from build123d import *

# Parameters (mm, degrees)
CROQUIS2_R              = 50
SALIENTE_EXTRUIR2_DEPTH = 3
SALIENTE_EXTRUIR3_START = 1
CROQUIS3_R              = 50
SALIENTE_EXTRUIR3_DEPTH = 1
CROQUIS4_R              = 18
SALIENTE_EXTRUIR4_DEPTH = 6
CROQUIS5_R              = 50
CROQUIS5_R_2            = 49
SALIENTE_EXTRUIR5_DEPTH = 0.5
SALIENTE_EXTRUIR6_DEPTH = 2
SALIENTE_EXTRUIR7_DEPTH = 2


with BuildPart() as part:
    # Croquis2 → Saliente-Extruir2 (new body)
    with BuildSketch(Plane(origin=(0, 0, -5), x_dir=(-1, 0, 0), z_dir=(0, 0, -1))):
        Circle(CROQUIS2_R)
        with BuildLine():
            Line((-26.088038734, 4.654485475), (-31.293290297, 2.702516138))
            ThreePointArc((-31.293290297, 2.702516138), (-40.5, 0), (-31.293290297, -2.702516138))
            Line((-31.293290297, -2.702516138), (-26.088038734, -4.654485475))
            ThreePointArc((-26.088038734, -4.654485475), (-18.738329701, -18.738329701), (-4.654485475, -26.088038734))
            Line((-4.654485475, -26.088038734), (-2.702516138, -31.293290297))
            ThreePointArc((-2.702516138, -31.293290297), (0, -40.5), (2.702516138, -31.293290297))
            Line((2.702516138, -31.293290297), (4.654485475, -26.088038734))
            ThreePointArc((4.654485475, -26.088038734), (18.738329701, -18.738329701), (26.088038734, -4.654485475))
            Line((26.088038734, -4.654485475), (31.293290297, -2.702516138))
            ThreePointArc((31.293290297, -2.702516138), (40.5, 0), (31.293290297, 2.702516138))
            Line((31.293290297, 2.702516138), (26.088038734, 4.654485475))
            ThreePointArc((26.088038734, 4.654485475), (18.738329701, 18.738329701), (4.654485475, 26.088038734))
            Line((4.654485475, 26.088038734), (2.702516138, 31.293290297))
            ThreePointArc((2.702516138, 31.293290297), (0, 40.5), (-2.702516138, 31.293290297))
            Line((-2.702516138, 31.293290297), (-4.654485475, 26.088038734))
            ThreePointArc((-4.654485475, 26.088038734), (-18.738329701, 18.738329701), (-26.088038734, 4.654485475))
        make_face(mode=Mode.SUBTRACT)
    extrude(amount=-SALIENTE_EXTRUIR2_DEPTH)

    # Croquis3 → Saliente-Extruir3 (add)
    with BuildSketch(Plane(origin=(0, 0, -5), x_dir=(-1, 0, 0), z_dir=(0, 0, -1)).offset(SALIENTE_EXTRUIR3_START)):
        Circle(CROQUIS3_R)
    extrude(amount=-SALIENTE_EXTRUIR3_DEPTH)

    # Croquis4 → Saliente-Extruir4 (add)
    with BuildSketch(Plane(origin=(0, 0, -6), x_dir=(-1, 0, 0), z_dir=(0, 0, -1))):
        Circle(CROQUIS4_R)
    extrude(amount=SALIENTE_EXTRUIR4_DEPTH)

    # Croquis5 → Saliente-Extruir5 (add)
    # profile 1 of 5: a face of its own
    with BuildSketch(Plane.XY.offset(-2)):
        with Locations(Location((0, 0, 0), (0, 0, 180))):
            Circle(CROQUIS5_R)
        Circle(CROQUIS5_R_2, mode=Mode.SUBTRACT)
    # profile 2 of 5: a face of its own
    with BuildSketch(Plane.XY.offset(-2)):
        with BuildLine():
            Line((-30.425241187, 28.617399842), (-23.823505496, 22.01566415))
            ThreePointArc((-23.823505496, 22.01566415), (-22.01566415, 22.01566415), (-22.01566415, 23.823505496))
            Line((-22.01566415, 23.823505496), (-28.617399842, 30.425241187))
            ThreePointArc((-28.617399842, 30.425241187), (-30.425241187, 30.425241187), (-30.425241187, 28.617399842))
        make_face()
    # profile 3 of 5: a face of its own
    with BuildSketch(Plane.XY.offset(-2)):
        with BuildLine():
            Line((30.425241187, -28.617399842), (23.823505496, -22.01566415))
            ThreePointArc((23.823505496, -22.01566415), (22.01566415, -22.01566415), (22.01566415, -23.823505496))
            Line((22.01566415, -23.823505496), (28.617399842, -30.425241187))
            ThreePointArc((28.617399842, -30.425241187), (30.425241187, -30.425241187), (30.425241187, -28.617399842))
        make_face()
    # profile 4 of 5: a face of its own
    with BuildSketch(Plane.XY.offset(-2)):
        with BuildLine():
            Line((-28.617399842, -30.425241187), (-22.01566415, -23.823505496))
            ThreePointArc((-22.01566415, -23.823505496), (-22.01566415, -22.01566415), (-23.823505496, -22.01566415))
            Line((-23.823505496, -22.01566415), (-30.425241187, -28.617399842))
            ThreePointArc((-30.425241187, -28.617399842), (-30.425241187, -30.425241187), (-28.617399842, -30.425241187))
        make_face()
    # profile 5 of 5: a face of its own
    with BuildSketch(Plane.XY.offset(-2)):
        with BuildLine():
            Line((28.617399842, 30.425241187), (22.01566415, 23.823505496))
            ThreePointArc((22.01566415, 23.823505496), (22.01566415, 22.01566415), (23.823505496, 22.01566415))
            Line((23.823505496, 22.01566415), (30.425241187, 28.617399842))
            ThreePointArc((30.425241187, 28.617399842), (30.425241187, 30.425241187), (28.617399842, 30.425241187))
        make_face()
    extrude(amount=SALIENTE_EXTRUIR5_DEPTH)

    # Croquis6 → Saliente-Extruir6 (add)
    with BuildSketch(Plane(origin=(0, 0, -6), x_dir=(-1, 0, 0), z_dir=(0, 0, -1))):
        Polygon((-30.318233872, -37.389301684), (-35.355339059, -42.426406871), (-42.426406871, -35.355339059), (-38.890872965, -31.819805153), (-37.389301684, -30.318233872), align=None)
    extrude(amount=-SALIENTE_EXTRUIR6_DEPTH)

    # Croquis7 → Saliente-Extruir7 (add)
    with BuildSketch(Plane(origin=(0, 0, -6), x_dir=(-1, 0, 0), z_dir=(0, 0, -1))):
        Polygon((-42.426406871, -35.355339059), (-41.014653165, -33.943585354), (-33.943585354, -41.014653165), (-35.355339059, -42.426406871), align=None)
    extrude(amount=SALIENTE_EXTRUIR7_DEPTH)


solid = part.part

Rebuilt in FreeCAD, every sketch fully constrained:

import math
import FreeCAD as App
import Part
import Sketcher
Q = App.Units.Quantity


def add_polygon(sketch, points):
    """Adds a closed chain of lines whose ends are joined by coincident constraints."""
    first, n = sketch.GeometryCount, len(points)
    for a, b in zip(points, points[1:] + points[:1]):
        sketch.addGeometry(Part.LineSegment(App.Vector(*a, 0), App.Vector(*b, 0)), False)
    for i in range(n):
        sketch.addConstraint(Sketcher.Constraint("Coincident", first + i, 2, first + (i + 1) % n, 1))

doc = App.newDocument("Part")
body = doc.addObject("PartDesign::Body", "Body")

sketch1 = doc.addObject("Sketcher::SketchObject", "Sketch")
body.addObject(sketch1)
sketch1.AttachmentSupport = (doc.XY_Plane, [""])
sketch1.MapMode = "FlatFace"
sketch1.AttachmentOffset = App.Placement(App.Vector(0, 0, -5), App.Rotation())
sketch1.addGeometry([
    Part.Circle(App.Vector(0, 0, 0), App.Vector(0, 0, 1), 50),
    Part.LineSegment(App.Vector(31, 3, 0), App.Vector(26, 5, 0)),
    Part.ArcOfCircle(Part.Circle(App.Vector(0, 0, 0), App.Vector(0, 0, 1), 27), math.radians(10), math.radians(80)),
    Part.LineSegment(App.Vector(5, 26, 0), App.Vector(3, 31, 0)),
    Part.ArcOfCircle(Part.Circle(App.Vector(0, 36, 0), App.Vector(0, 0, 1), 5), math.radians(-57), math.radians(237)),
    Part.LineSegment(App.Vector(-3, 31, 0), App.Vector(-5, 26, 0)),
    Part.ArcOfCircle(Part.Circle(App.Vector(0, 0, 0), App.Vector(0, 0, 1), 27), math.radians(100), math.radians(170)),
    Part.LineSegment(App.Vector(-26, 5, 0), App.Vector(-31, 3, 0)),
    Part.ArcOfCircle(Part.Circle(App.Vector(-36, 0, 0), App.Vector(0, 0, 1), 5), math.radians(33), math.radians(327)),
    Part.LineSegment(App.Vector(-31, -3, 0), App.Vector(-26, -5, 0)),
    Part.ArcOfCircle(Part.Circle(App.Vector(0, 0, 0), App.Vector(0, 0, 1), 27), math.radians(-170), math.radians(-100)),
    Part.LineSegment(App.Vector(-5, -26, 0), App.Vector(-3, -31, 0)),
    Part.ArcOfCircle(Part.Circle(App.Vector(0, -36, 0), App.Vector(0, 0, 1), 5), math.radians(123), math.radians(417)),
    Part.LineSegment(App.Vector(3, -31, 0), App.Vector(5, -26, 0)),
    Part.ArcOfCircle(Part.Circle(App.Vector(0, 0, 0), App.Vector(0, 0, 1), 27), math.radians(-80), math.radians(-10)),
    Part.LineSegment(App.Vector(26, -5, 0), App.Vector(31, -3, 0)),
    Part.ArcOfCircle(Part.Circle(App.Vector(36, 0, 0), App.Vector(0, 0, 1), 5), math.radians(-147), math.radians(147)),
], False)
sketch1.addConstraint([
    Sketcher.Constraint("Coincident", 1, 2, 2, 1),
    Sketcher.Constraint("Coincident", 2, 2, 3, 1),
    Sketcher.Constraint("Coincident", 3, 2, 4, 1),
    Sketcher.Constraint("Coincident", 4, 2, 5, 1),
    Sketcher.Constraint("Coincident", 5, 2, 6, 1),
    Sketcher.Constraint("Coincident", 6, 2, 7, 1),
    Sketcher.Constraint("Coincident", 7, 2, 8, 1),
    Sketcher.Constraint("Coincident", 8, 2, 9, 1),
    Sketcher.Constraint("Coincident", 9, 2, 10, 1),
    Sketcher.Constraint("Coincident", 10, 2, 11, 1),
    Sketcher.Constraint("Coincident", 11, 2, 12, 1),
    Sketcher.Constraint("Coincident", 12, 2, 13, 1),
    Sketcher.Constraint("Coincident", 13, 2, 14, 1),
    Sketcher.Constraint("Coincident", 14, 2, 15, 1),
    Sketcher.Constraint("Coincident", 15, 2, 16, 1),
    Sketcher.Constraint("Coincident", 16, 2, 1, 1),
    Sketcher.Constraint("Coincident", 0, 3, -1, 1),
    Sketcher.Constraint("Coincident", 2, 3, -1, 1),
    Sketcher.Constraint("Coincident", 6, 3, -1, 1),
    Sketcher.Constraint("Coincident", 10, 3, -1, 1),
    Sketcher.Constraint("Coincident", 14, 3, -1, 1),
    Sketcher.Constraint("Equal", 2, 6),
    Sketcher.Constraint("Equal", 4, 8),
    Sketcher.Constraint("Equal", 6, 10),
    Sketcher.Constraint("Equal", 8, 12),
    Sketcher.Constraint("Equal", 10, 14),
    Sketcher.Constraint("Equal", 12, 16),
    Sketcher.Constraint("Symmetric", 4, 3, 12, 3, -1, 1),
    Sketcher.Constraint("Symmetric", 8, 3, 16, 3, -1, 1),
    Sketcher.Constraint("Symmetric", 3, 2, 4, 2, -2),
    Sketcher.Constraint("Symmetric", 8, 2, 15, 2, -2),
    Sketcher.Constraint("Perpendicular", 1, 5),
    Sketcher.Constraint("Perpendicular", 3, 7),
    Sketcher.Constraint("Perpendicular", 5, 9),
    Sketcher.Constraint("Perpendicular", 7, 11),
    Sketcher.Constraint("Perpendicular", 9, 13),
    Sketcher.Constraint("Perpendicular", 11, 15),
    Sketcher.Constraint("Horizontal", 2, 2, 5, 2),
    Sketcher.Constraint("Horizontal", 1, 2, 6, 2),
    Sketcher.Constraint("Horizontal", 11, 2, 12, 2),
    Sketcher.Constraint("Vertical", 7, 2, 8, 2),
    Sketcher.Constraint("Vertical", 5, 2, 10, 2),
    Sketcher.Constraint("Equal", 1, 3),
    Sketcher.Constraint("Diameter", 0, Q("100 mm")),
    Sketcher.Constraint("Radius", 4, Q("5 mm")),
    Sketcher.Constraint("Radius", 2, Q("26.5 mm")),
    Sketcher.Constraint("DistanceY", -1, 1, 4, 3, Q("35.5 mm")),
    Sketcher.Constraint("DistanceX", 8, 3, -1, 1, Q("35.5 mm")),
    Sketcher.Constraint("DistanceX", 4, 2, 2, 2, Q("7.357002 mm")),
    Sketcher.Constraint("Distance", 1, Q("5.559211 mm")),
])
pad1 = doc.addObject("PartDesign::Pad", "Pad")
body.addObject(pad1)
pad1.Profile = sketch1
pad1.Length = 3

sketch2 = doc.addObject("Sketcher::SketchObject", "Sketch001")
body.addObject(sketch2)
sketch2.AttachmentSupport = (doc.XY_Plane, [""])
sketch2.MapMode = "FlatFace"
sketch2.AttachmentOffset = App.Placement(App.Vector(0, 0, -6), App.Rotation())
sketch2.addGeometry(Part.Circle(App.Vector(0, 0, 0), App.Vector(0, 0, 1), 50), False)
sketch2.addConstraint([
    Sketcher.Constraint("Coincident", 0, 3, -1, 1),
    Sketcher.Constraint("Diameter", 0, Q("100 mm")),
])
pad2 = doc.addObject("PartDesign::Pad", "Pad001")
body.addObject(pad2)
pad2.Profile = sketch2
pad2.Length = 1

sketch3 = doc.addObject("Sketcher::SketchObject", "Sketch002")
body.addObject(sketch3)
sketch3.AttachmentSupport = (doc.XY_Plane, [""])
sketch3.MapMode = "FlatFace"
sketch3.AttachmentOffset = App.Placement(App.Vector(0, 0, -6), App.Rotation())
sketch3.addGeometry(Part.Circle(App.Vector(0, 0, 0), App.Vector(0, 0, 1), 18), False)
sketch3.addConstraint([
    Sketcher.Constraint("Coincident", 0, 3, -1, 1),
    Sketcher.Constraint("Diameter", 0, Q("36 mm")),
])
pad3 = doc.addObject("PartDesign::Pad", "Pad002")
body.addObject(pad3)
pad3.Profile = sketch3
pad3.Length = 6
pad3.Reversed = True

sketch4 = doc.addObject("Sketcher::SketchObject", "Sketch003")
body.addObject(sketch4)
sketch4.AttachmentSupport = (doc.XY_Plane, [""])
sketch4.MapMode = "FlatFace"
sketch4.AttachmentOffset = App.Placement(App.Vector(0, 0, -2), App.Rotation())
sketch4.addGeometry([
    Part.Circle(App.Vector(0, 0, 0), App.Vector(0, 0, 1), 50),
    Part.Circle(App.Vector(0, 0, 0), App.Vector(0, 0, 1), 49),
    Part.LineSegment(App.Vector(-30.4, 28.6, 0), App.Vector(-23.8, 22, 0)),
    Part.ArcOfCircle(Part.Circle(App.Vector(-22.9, 22.9, 0), App.Vector(0, 0, 1), 1.3), math.radians(-135), math.radians(45)),
    Part.LineSegment(App.Vector(-22, 23.8, 0), App.Vector(-28.6, 30.4, 0)),
    Part.ArcOfCircle(Part.Circle(App.Vector(-29.5, 29.5, 0), App.Vector(0, 0, 1), 1.3), math.radians(45), math.radians(225)),
    Part.LineSegment(App.Vector(30.4, -28.6, 0), App.Vector(23.8, -22, 0)),
    Part.ArcOfCircle(Part.Circle(App.Vector(22.9, -22.9, 0), App.Vector(0, 0, 1), 1.3), math.radians(45), math.radians(225)),
    Part.LineSegment(App.Vector(22, -23.8, 0), App.Vector(28.6, -30.4, 0)),
    Part.ArcOfCircle(Part.Circle(App.Vector(29.5, -29.5, 0), App.Vector(0, 0, 1), 1.3), math.radians(-135), math.radians(45)),
    Part.LineSegment(App.Vector(-28.6, -30.4, 0), App.Vector(-22, -23.8, 0)),
    Part.ArcOfCircle(Part.Circle(App.Vector(-22.9, -22.9, 0), App.Vector(0, 0, 1), 1.3), math.radians(-45), math.radians(135)),
    Part.LineSegment(App.Vector(-23.8, -22, 0), App.Vector(-30.4, -28.6, 0)),
    Part.ArcOfCircle(Part.Circle(App.Vector(-29.5, -29.5, 0), App.Vector(0, 0, 1), 1.3), math.radians(135), math.radians(315)),
    Part.LineSegment(App.Vector(28.6, 30.4, 0), App.Vector(22, 23.8, 0)),
    Part.ArcOfCircle(Part.Circle(App.Vector(22.9, 22.9, 0), App.Vector(0, 0, 1), 1.3), math.radians(135), math.radians(315)),
    Part.LineSegment(App.Vector(23.8, 22, 0), App.Vector(30.4, 28.6, 0)),
    Part.ArcOfCircle(Part.Circle(App.Vector(29.5, 29.5, 0), App.Vector(0, 0, 1), 1.3), math.radians(-45), math.radians(135)),
], False)
sketch4.addConstraint([
    Sketcher.Constraint("Tangent", 2, 2, 3, 1),
    Sketcher.Constraint("Tangent", 3, 2, 4, 1),
    Sketcher.Constraint("Tangent", 4, 2, 5, 1),
    Sketcher.Constraint("Tangent", 5, 2, 2, 1),
    Sketcher.Constraint("Tangent", 6, 2, 7, 1),
    Sketcher.Constraint("Tangent", 7, 2, 8, 1),
    Sketcher.Constraint("Tangent", 8, 2, 9, 1),
    Sketcher.Constraint("Tangent", 9, 2, 6, 1),
    Sketcher.Constraint("Tangent", 10, 2, 11, 1),
    Sketcher.Constraint("Tangent", 11, 2, 12, 1),
    Sketcher.Constraint("Tangent", 12, 2, 13, 1),
    Sketcher.Constraint("Tangent", 13, 2, 10, 1),
    Sketcher.Constraint("Tangent", 14, 2, 15, 1),
    Sketcher.Constraint("Tangent", 15, 2, 16, 1),
    Sketcher.Constraint("Tangent", 16, 2, 17, 1),
    Sketcher.Constraint("Tangent", 17, 2, 14, 1),
    Sketcher.Constraint("Coincident", 0, 3, -1, 1),
    Sketcher.Constraint("Coincident", 1, 3, -1, 1),
    Sketcher.Constraint("Equal", 3, 5),
    Sketcher.Constraint("Equal", 5, 7),
    Sketcher.Constraint("Equal", 7, 9),
    Sketcher.Constraint("Equal", 9, 11),
    Sketcher.Constraint("Equal", 11, 13),
    Sketcher.Constraint("Equal", 13, 15),
    Sketcher.Constraint("Equal", 15, 17),
    Sketcher.Constraint("Symmetric", 3, 3, 7, 3, -1, 1),
    Sketcher.Constraint("Symmetric", 5, 3, 9, 3, -1, 1),
    Sketcher.Constraint("Symmetric", 11, 3, 15, 3, -1, 1),
    Sketcher.Constraint("Symmetric", 13, 3, 17, 3, -1, 1),
    Sketcher.Constraint("Symmetric", 7, 3, 11, 3, -2),
    Sketcher.Constraint("Symmetric", 9, 3, 13, 3, -2),
    Sketcher.Constraint("Perpendicular", 8, 10),
    Sketcher.Constraint("Diameter", 0, Q("100 mm")),
    Sketcher.Constraint("Diameter", 1, Q("98 mm")),
    Sketcher.Constraint("Radius", 3, Q("1.278337 mm")),
    Sketcher.Constraint("DistanceX", 4, 2, -1, 1, Q("28.6174 mm")),
    Sketcher.Constraint("DistanceY", -1, 1, 5, 2, Q("28.6174 mm")),
    Sketcher.Constraint("DistanceX", 3, 3, 7, 3, Q("45.83917 mm")),
])
pad4 = doc.addObject("PartDesign::Pad", "Pad003")
body.addObject(pad4)
pad4.Profile = sketch4
pad4.Length = 0.5

sketch5 = doc.addObject("Sketcher::SketchObject", "Sketch004")
body.addObject(sketch5)
sketch5.AttachmentSupport = (doc.XY_Plane, [""])
sketch5.MapMode = "FlatFace"
sketch5.AttachmentOffset = App.Placement(App.Vector(0, 0, -6), App.Rotation())
add_polygon(sketch5, [(35, -42), (30, -37), (37, -30), (42, -35)])
sketch5.addConstraint([
    Sketcher.Constraint("Perpendicular", 0, 1),
    Sketcher.Constraint("Perpendicular", 1, 2),
    Sketcher.Constraint("Perpendicular", 2, 3),
    Sketcher.Constraint("Angle", 0, Q("135 deg")),
    Sketcher.Constraint("Distance", 1, Q("10 mm")),
    Sketcher.Constraint("DistanceY", 0, 2, -1, 1, Q("37.389302 mm")),
    Sketcher.Constraint("DistanceX", -1, 1, 1, 2, Q("37.389302 mm")),
    Sketcher.Constraint("DistanceY", 2, 2, -1, 1, Q("35.355339 mm")),
])
pad5 = doc.addObject("PartDesign::Pad", "Pad004")
body.addObject(pad5)
pad5.Profile = sketch5
pad5.Length = 2

sketch6 = doc.addObject("Sketcher::SketchObject", "Sketch005")
body.addObject(sketch6)
sketch6.AttachmentSupport = (doc.XY_Plane, [""])
sketch6.MapMode = "FlatFace"
sketch6.AttachmentOffset = App.Placement(App.Vector(0, 0, -6), App.Rotation())
add_polygon(sketch6, [(41, -33.9), (42.4, -35.4), (35.4, -42.4), (33.9, -41)])
sketch6.addConstraint([
    Sketcher.Constraint("Perpendicular", 0, 1),
    Sketcher.Constraint("Perpendicular", 1, 2),
    Sketcher.Constraint("Perpendicular", 2, 3),
    Sketcher.Constraint("Angle", 0, Q("-45 deg")),
    Sketcher.Constraint("Distance", 1, Q("10 mm")),
    Sketcher.Constraint("Distance", 0, Q("1.996521 mm")),
    Sketcher.Constraint("DistanceY", 0, 2, -1, 1, Q("35.355339 mm")),
    Sketcher.Constraint("DistanceX", -1, 1, 1, 2, Q("35.355339 mm")),
])
pad6 = doc.addObject("PartDesign::Pad", "Pad005")
body.addObject(pad6)
pad6.Profile = sketch6
pad6.Length = 2
pad6.Reversed = True

doc.recompute()
